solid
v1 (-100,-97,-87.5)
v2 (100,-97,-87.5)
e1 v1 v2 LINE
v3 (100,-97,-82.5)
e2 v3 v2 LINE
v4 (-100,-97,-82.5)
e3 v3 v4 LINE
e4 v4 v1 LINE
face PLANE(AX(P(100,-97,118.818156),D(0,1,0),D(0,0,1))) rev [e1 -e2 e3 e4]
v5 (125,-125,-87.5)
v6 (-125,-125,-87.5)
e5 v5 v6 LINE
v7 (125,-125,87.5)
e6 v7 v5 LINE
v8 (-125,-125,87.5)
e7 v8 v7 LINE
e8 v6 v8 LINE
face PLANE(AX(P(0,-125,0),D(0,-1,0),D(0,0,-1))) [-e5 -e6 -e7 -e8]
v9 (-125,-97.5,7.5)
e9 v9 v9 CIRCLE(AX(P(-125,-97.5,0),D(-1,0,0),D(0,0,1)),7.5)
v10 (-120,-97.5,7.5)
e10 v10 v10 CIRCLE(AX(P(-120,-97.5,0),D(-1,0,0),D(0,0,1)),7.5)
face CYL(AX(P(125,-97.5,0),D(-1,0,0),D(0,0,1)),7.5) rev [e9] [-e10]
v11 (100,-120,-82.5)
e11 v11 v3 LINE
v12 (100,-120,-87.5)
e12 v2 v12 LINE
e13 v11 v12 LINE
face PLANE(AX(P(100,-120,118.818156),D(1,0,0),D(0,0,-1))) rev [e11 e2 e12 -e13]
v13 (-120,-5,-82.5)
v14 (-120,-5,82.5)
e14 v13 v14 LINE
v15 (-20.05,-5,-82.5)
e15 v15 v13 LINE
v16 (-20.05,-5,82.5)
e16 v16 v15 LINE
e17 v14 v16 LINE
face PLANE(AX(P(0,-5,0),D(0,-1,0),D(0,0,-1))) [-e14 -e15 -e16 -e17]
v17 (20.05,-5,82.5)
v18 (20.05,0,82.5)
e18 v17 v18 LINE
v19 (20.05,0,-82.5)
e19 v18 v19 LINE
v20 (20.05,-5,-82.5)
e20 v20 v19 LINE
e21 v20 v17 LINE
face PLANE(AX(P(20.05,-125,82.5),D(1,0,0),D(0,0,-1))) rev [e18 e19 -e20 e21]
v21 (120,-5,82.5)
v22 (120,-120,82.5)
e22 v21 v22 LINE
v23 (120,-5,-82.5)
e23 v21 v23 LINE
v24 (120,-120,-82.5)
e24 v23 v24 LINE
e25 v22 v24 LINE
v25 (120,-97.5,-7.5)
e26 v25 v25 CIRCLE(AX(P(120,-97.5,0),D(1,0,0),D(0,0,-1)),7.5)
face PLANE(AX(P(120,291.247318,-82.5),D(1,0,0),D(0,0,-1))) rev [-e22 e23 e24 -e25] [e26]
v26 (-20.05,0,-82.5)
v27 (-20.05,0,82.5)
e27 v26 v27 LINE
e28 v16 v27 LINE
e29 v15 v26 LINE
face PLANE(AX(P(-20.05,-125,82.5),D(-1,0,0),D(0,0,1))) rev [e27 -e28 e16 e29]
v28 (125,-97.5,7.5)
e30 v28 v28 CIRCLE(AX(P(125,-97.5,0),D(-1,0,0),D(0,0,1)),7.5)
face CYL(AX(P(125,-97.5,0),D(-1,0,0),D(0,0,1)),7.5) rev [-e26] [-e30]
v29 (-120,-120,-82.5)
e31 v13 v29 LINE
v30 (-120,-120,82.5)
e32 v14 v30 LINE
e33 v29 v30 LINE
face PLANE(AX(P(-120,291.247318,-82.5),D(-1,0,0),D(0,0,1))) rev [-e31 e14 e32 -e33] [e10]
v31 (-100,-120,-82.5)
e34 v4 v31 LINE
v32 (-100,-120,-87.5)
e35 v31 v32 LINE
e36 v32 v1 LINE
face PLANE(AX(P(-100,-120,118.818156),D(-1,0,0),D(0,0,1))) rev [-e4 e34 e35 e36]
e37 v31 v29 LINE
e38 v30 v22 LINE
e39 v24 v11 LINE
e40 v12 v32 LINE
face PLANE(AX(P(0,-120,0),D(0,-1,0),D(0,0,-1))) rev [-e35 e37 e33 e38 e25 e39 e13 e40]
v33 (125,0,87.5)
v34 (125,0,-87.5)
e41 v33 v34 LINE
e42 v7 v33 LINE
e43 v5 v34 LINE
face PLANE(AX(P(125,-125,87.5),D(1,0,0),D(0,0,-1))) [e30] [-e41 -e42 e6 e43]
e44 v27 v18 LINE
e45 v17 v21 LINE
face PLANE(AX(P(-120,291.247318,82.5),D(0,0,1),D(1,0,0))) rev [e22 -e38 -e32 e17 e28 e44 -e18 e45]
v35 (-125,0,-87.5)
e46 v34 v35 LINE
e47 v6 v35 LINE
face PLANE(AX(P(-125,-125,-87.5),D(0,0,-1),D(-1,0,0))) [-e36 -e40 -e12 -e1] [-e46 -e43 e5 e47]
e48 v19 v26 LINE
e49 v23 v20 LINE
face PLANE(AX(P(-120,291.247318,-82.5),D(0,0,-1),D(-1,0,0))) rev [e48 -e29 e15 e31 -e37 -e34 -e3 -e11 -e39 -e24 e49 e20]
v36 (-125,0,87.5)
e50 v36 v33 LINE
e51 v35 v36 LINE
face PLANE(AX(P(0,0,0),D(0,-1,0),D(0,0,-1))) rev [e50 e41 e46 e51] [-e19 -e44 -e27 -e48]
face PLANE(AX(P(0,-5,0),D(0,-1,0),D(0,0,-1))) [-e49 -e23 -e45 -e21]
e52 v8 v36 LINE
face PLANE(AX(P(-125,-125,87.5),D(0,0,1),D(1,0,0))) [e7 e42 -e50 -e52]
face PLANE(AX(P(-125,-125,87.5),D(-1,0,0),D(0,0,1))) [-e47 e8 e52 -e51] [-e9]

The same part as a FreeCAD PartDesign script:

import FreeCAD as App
import Part
import Sketcher

V = App.Vector

doc = App.newDocument("Part")
body = doc.addObject("PartDesign::Body", "Body")

# Sketch on XZ plane
sketch1 = body.newObject("Sketcher::SketchObject", "Sketch")
sketch1.AttachmentSupport = (doc.getObject("XZ_Plane"), [""])
sketch1.MapMode = "FlatFace"
sketch1.addGeometry(Part.LineSegment(V(-125, -87.5, 0), V(-125, 87.5, 0)), False)
sketch1.addGeometry(Part.LineSegment(V(-125, 87.5, 0), V(125, 87.5, 0)), False)
sketch1.addGeometry(Part.LineSegment(V(125, 87.5, 0), V(125, -87.5, 0)), False)
sketch1.addGeometry(Part.LineSegment(V(125, -87.5, 0), V(-125, -87.5, 0)), False)
sketch1.addConstraint(Sketcher.Constraint("Coincident", 0, 2, 1, 1))
sketch1.addConstraint(Sketcher.Constraint("Coincident", 1, 2, 2, 1))
sketch1.addConstraint(Sketcher.Constraint("Coincident", 2, 2, 3, 1))
sketch1.addConstraint(Sketcher.Constraint("Coincident", 3, 2, 0, 1))
sketch1.addConstraint(Sketcher.Constraint("Vertical", 0))
sketch1.addConstraint(Sketcher.Constraint("Horizontal", 1))
sketch1.addConstraint(Sketcher.Constraint("Vertical", 2))
sketch1.addConstraint(Sketcher.Constraint("Horizontal", 3))
sketch1.addConstraint(Sketcher.Constraint("Symmetric", 0, 2, 2, 2, -1, 1))
sketch1.addConstraint(Sketcher.Constraint("DistanceX", 1, 1, 1, 2, 250.0))
sketch1.addConstraint(Sketcher.Constraint("DistanceY", 0, 1, 0, 2, 175.0))
pad1 = body.newObject("PartDesign::Pad", "Pad")
pad1.Profile = sketch1
pad1.Length = 125

# Sketch on XZ plane
sketch2 = body.newObject("Sketcher::SketchObject", "Sketch001")
sketch2.AttachmentSupport = (doc.getObject("XZ_Plane"), [""])
sketch2.MapMode = "FlatFace"
sketch2.AttachmentOffset = App.Placement(V(0, 0, 125), App.Rotation())
sketch2.addGeometry(Part.LineSegment(V(-120, 82.5, 0), V(-120, -82.5, 0)), False)
sketch2.addGeometry(Part.LineSegment(V(-120, -82.5, 0), V(120, -82.5, 0)), False)
sketch2.addGeometry(Part.LineSegment(V(120, -82.5, 0), V(120, 82.5, 0)), False)
sketch2.addGeometry(Part.LineSegment(V(120, 82.5, 0), V(-120, 82.5, 0)), False)
sketch2.addConstraint(Sketcher.Constraint("Coincident", 0, 2, 1, 1))
sketch2.addConstraint(Sketcher.Constraint("Coincident", 1, 2, 2, 1))
sketch2.addConstraint(Sketcher.Constraint("Coincident", 2, 2, 3, 1))
sketch2.addConstraint(Sketcher.Constraint("Coincident", 3, 2, 0, 1))
sketch2.addConstraint(Sketcher.Constraint("Vertical", 0))
sketch2.addConstraint(Sketcher.Constraint("Horizontal", 1))
sketch2.addConstraint(Sketcher.Constraint("Vertical", 2))
sketch2.addConstraint(Sketcher.Constraint("Horizontal", 3))
sketch2.addConstraint(Sketcher.Constraint("Symmetric", 0, 2, 2, 2, -1, 1))
sketch2.addConstraint(Sketcher.Constraint("DistanceX", 1, 1, 1, 2, 240.0))
sketch2.addConstraint(Sketcher.Constraint("DistanceY", 0, 2, 0, 1, 165.0))
pocket1 = body.newObject("PartDesign::Pocket", "Pocket")
pocket1.Profile = sketch2
pocket1.Length = 120

# Sketch on XZ plane
sketch3 = body.newObject("Sketcher::SketchObject", "Sketch002")
sketch3.AttachmentSupport = (doc.getObject("XZ_Plane"), [""])
sketch3.MapMode = "FlatFace"
sketch3.addGeometry(Part.LineSegment(V(-20.05, -82.5, 0), V(-20.05, 82.5, 0)), False)
sketch3.addGeometry(Part.LineSegment(V(-20.05, 82.5, 0), V(20.05, 82.5, 0)), False)
sketch3.addGeometry(Part.LineSegment(V(20.05, 82.5, 0), V(20.05, -82.5, 0)), False)
sketch3.addGeometry(Part.LineSegment(V(20.05, -82.5, 0), V(-20.05, -82.5, 0)), False)
sketch3.addConstraint(Sketcher.Constraint("Coincident", 0, 2, 1, 1))
sketch3.addConstraint(Sketcher.Constraint("Coincident", 1, 2, 2, 1))
sketch3.addConstraint(Sketcher.Constraint("Coincident", 2, 2, 3, 1))
sketch3.addConstraint(Sketcher.Constraint("Coincident", 3, 2, 0, 1))
sketch3.addConstraint(Sketcher.Constraint("Vertical", 0))
sketch3.addConstraint(Sketcher.Constraint("Horizontal", 1))
sketch3.addConstraint(Sketcher.Constraint("Vertical", 2))
sketch3.addConstraint(Sketcher.Constraint("Horizontal", 3))
sketch3.addConstraint(Sketcher.Constraint("Symmetric", 0, 2, 2, 2, -1, 1))
sketch3.addConstraint(Sketcher.Constraint("DistanceY", 0, 1, 0, 2, 165.0))
sketch3.addConstraint(Sketcher.Constraint("DistanceX", 1, 1, 1, 2, 40.1))
pocket2 = body.newObject("PartDesign::Pocket", "Pocket001")
pocket2.Profile = sketch3
pocket2.Type = "ThroughAll"
pocket2.Reversed = True

# Sketch on YZ plane
sketch4 = body.newObject("Sketcher::SketchObject", "Sketch003")
sketch4.AttachmentSupport = (doc.getObject("YZ_Plane"), [""])
sketch4.MapMode = "FlatFace"
sketch4.AttachmentOffset = App.Placement(V(0, 0, -125), App.Rotation())
sketch4.addGeometry(Part.Circle(V(-97.5, 0, 0), V(0, 0, 1), 7.5), False)
sketch4.addConstraint(Sketcher.Constraint("PointOnObject", 0, 3, -1))
sketch4.addConstraint(Sketcher.Constraint("Diameter", 0, 15.0))
sketch4.addConstraint(Sketcher.Constraint("DistanceX", 0, 3, -1, 1, 97.5))
pocket3 = body.newObject("PartDesign::Pocket", "Pocket002")
pocket3.Profile = sketch4
pocket3.Type = "ThroughAll"
pocket3.Reversed = True

# Sketch on XZ plane
sketch5 = body.newObject("Sketcher::SketchObject", "Sketch004")
sketch5.AttachmentSupport = (doc.getObject("XZ_Plane"), [""])
sketch5.MapMode = "FlatFace"
sketch5.AttachmentOffset = App.Placement(V(0, 0, 125), App.Rotation())
sketch5.addGeometry(Part.LineSegment(V(-125, 87.5, 0), V(-125, -87.5, 0)), False)
sketch5.addGeometry(Part.LineSegment(V(-125, -87.5, 0), V(125, -87.5, 0)), False)
sketch5.addGeometry(Part.LineSegment(V(125, -87.5, 0), V(125, 87.5, 0)), False)
sketch5.addGeometry(Part.LineSegment(V(125, 87.5, 0), V(-125, 87.5, 0)), False)
sketch5.addConstraint(Sketcher.Constraint("Coincident", 0, 2, 1, 1))
sketch5.addConstraint(Sketcher.Constraint("Coincident", 1, 2, 2, 1))
sketch5.addConstraint(Sketcher.Constraint("Coincident", 2, 2, 3, 1))
sketch5.addConstraint(Sketcher.Constraint("Coincident", 3, 2, 0, 1))
sketch5.addConstraint(Sketcher.Constraint("Vertical", 0))
sketch5.addConstraint(Sketcher.Constraint("Horizontal", 1))
sketch5.addConstraint(Sketcher.Constraint("Vertical", 2))
sketch5.addConstraint(Sketcher.Constraint("Horizontal", 3))
sketch5.addConstraint(Sketcher.Constraint("Symmetric", 0, 2, 2, 2, -1, 1))
sketch5.addConstraint(Sketcher.Constraint("DistanceX", 1, 1, 1, 2, 250.0))
sketch5.addConstraint(Sketcher.Constraint("DistanceY", 0, 2, 0, 1, 175.0))
pad2 = body.newObject("PartDesign::Pad", "Pad001")
pad2.Profile = sketch5
pad2.Length = 5
pad2.Reversed = True

# Sketch on XY plane
sketch6 = body.newObject("Sketcher::SketchObject", "Sketch005")
sketch6.AttachmentSupport = (doc.getObject("XY_Plane"), [""])
sketch6.MapMode = "FlatFace"
sketch6.AttachmentOffset = App.Placement(V(0, 0, -87.5), App.Rotation())
sketch6.addGeometry(Part.LineSegment(V(100, -97, 0), V(100, -120, 0)), False)
sketch6.addGeometry(Part.LineSegment(V(100, -120, 0), V(-100, -120, 0)), False)
sketch6.addGeometry(Part.LineSegment(V(-100, -120, 0), V(-100, -97, 0)), False)
sketch6.addGeometry(Part.LineSegment(V(-100, -97, 0), V(100, -97, 0)), False)
sketch6.addConstraint(Sketcher.Constraint("Coincident", 0, 2, 1, 1))
sketch6.addConstraint(Sketcher.Constraint("Coincident", 1, 2, 2, 1))
sketch6.addConstraint(Sketcher.Constraint("Coincident", 2, 2, 3, 1))
sketch6.addConstraint(Sketcher.Constraint("Coincident", 3, 2, 0, 1))
sketch6.addConstraint(Sketcher.Constraint("Vertical", 0))
sketch6.addConstraint(Sketcher.Constraint("Horizontal", 1))
sketch6.addConstraint(Sketcher.Constraint("Vertical", 2))
sketch6.addConstraint(Sketcher.Constraint("Horizontal", 3))
sketch6.addConstraint(Sketcher.Constraint("DistanceX", 1, 2, 1, 1, 200.0))
sketch6.addConstraint(Sketcher.Constraint("DistanceY", 0, 2, 0, 1, 23.0))
sketch6.addConstraint(Sketcher.Constraint("DistanceX", -1, 1, 0, 2, 100.0))
sketch6.addConstraint(Sketcher.Constraint("DistanceY", 0, 2, -1, 1, 120.0))
pocket4 = body.newObject("PartDesign::Pocket", "Pocket003")
pocket4.Profile = sketch6
pocket4.Length = 5
pocket4.Reversed = True

doc.recompute()
